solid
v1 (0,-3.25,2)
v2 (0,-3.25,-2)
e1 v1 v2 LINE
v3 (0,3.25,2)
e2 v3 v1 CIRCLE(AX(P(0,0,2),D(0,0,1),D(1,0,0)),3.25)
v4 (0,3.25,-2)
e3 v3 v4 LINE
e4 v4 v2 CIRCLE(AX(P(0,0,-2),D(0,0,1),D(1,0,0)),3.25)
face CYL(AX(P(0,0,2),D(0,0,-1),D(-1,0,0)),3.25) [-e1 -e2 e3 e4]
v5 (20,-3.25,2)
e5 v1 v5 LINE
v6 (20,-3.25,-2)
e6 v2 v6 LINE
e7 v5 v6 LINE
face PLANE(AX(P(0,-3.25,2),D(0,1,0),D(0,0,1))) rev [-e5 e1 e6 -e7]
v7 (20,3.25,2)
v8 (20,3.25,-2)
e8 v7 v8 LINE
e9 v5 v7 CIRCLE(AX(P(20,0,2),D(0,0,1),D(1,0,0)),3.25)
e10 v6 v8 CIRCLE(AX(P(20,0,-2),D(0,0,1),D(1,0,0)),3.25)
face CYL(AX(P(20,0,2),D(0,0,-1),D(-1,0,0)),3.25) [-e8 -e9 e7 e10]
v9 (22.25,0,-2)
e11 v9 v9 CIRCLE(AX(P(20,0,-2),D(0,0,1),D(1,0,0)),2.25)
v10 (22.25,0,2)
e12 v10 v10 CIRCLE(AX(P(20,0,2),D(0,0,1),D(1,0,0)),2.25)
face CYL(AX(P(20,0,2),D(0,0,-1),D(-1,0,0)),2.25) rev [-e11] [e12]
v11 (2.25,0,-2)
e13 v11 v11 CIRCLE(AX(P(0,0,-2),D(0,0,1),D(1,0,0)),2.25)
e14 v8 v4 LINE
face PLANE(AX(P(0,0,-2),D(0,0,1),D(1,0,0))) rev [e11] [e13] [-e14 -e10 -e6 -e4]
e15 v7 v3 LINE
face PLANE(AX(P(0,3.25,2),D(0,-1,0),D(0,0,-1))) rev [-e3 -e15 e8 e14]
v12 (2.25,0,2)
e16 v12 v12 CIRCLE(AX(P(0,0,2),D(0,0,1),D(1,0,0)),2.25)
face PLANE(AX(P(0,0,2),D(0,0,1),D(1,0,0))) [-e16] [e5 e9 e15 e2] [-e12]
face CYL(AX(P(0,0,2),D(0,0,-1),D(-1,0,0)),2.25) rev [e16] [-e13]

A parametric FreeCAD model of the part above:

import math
import FreeCAD as App
import Part
import Sketcher

V = App.Vector

doc = App.newDocument("Part")
body = doc.addObject("PartDesign::Body", "Body")

sketch1 = body.newObject("Sketcher::SketchObject", "Sketch")
sketch1.AttachmentSupport = (doc.getObject("XY_Plane"), [""])
sketch1.MapMode = "FlatFace"
sketch1.addGeometry([
    Part.LineSegment(V(20, 3.25, 0), V(0, 3.25, 0)),
    Part.ArcOfCircle(Part.Circle(V(0, 0, 0), V(0, 0, 1), 3.25), math.radians(90), math.radians(270)),
    Part.LineSegment(V(0, -3.25, 0), V(20, -3.25, 0)),
    Part.ArcOfCircle(Part.Circle(V(20, 0, 0), V(0, 0, 1), 3.25), math.radians(-90), math.radians(90)),
    Part.Circle(V(20, 0, 0), V(0, 0, 1), 2.25),
    Part.Circle(V(0, 0, 0), V(0, 0, 1), 2.25),
], False)
sketch1.addConstraint([
    Sketcher.Constraint("Tangent", 0, 2, 1, 1),
    Sketcher.Constraint("Tangent", 1, 2, 2, 1),
    Sketcher.Constraint("Tangent", 2, 2, 3, 1),
    Sketcher.Constraint("Tangent", 3, 2, 0, 1),
    Sketcher.Constraint("Horizontal", 0),
    Sketcher.Constraint("Horizontal", 2),
    Sketcher.Constraint("Coincident", 1, 3, -1, 1),
    Sketcher.Constraint("Coincident", 5, 3, -1, 1),
    Sketcher.Constraint("Coincident", 4, 3, 3, 3),
    Sketcher.Constraint("Equal", 4, 5),
    Sketcher.Constraint("Diameter", 4, 4.5),
    Sketcher.Constraint("DistanceX", 0, 2, 0, 1, 20.0),
    Sketcher.Constraint("Radius", 1, 3.25),
])
pad1 = body.newObject("PartDesign::Pad", "Pad")
pad1.Profile = sketch1
pad1.Length = 4
pad1.Midplane = True

doc.recompute()
